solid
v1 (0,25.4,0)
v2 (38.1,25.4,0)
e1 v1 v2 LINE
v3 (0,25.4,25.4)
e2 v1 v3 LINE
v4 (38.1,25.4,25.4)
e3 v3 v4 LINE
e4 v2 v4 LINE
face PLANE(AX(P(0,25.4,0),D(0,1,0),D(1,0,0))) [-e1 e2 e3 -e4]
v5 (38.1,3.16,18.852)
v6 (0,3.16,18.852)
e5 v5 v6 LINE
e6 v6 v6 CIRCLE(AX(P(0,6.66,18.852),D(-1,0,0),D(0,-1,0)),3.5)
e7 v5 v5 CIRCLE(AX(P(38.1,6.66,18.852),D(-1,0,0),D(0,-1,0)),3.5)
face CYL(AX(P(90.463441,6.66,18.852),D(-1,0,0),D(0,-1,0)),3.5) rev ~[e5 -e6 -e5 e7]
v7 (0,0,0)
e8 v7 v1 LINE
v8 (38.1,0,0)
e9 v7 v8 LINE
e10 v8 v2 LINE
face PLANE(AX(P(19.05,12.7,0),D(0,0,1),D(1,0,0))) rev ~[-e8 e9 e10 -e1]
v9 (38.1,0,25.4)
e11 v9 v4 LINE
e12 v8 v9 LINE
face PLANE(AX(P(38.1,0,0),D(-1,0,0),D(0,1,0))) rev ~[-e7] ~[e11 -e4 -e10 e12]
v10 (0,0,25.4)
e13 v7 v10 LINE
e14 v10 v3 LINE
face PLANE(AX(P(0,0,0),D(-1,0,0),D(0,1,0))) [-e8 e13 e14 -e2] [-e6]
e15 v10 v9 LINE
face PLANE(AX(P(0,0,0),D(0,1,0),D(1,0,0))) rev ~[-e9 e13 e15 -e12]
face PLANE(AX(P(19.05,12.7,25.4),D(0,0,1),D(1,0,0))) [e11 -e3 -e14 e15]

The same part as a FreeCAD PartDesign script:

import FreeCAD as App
import Part
import Sketcher

V = App.Vector
Q = App.Units.Quantity

doc = App.newDocument("Part")
body = doc.addObject("PartDesign::Body", "Body")

# Sketch on XY plane
sketch1 = doc.addObject("Sketcher::SketchObject", "Sketch")
body.addObject(sketch1)
sketch1.AttachmentSupport = (doc.XY_Plane, [""])
sketch1.MapMode = "FlatFace"
sketch1.addGeometry([
    Part.LineSegment(V(0, 25.4, 0), V(0, 0, 0)),
    Part.LineSegment(V(0, 0, 0), V(38.1, 0, 0)),
    Part.LineSegment(V(38.1, 0, 0), V(38.1, 25.4, 0)),
    Part.LineSegment(V(38.1, 25.4, 0), V(0, 25.4, 0)),
], False)
sketch1.addConstraint([
    Sketcher.Constraint("Coincident", 0, 2, 1, 1),
    Sketcher.Constraint("Coincident", 1, 2, 2, 1),
    Sketcher.Constraint("Coincident", 2, 2, 3, 1),
    Sketcher.Constraint("Coincident", 3, 2, 0, 1),
    Sketcher.Constraint("Vertical", 0),
    Sketcher.Constraint("Horizontal", 1),
    Sketcher.Constraint("Vertical", 2),
    Sketcher.Constraint("Horizontal", 3),
    Sketcher.Constraint("Coincident", 0, 2, -1, 1),
    Sketcher.Constraint("DistanceY", 0, 2, 0, 1, Q("1 in")),
    Sketcher.Constraint("DistanceX", 1, 1, 1, 2, Q("1.5 in")),
])
pad1 = doc.addObject("PartDesign::Pad", "Pad")
body.addObject(pad1)
pad1.Profile = sketch1
pad1.Length = Q("1 in")

# Sketch on YZ plane
sketch2 = doc.addObject("Sketcher::SketchObject", "Sketch001")
body.addObject(sketch2)
sketch2.AttachmentSupport = (doc.YZ_Plane, [""])
sketch2.MapMode = "FlatFace"
sketch2.AttachmentOffset = App.Placement(V(0, 0, 1.5 * 25.4), App.Rotation())
sketch2.addGeometry(Part.Circle(V(6.66, 18.852, 0), V(0, 0, 1), 3.5), False)
sketch2.addConstraint([
    Sketcher.Constraint("Diameter", 0, Q("7 mm")),
    Sketcher.Constraint("DistanceX", -1, 1, 0, 3, Q("6.66 mm")),
    Sketcher.Constraint("DistanceY", -1, 1, 0, 3, Q("18.852 mm")),
])
doc.recompute()
hole = doc.addObject("PartDesign::Hole", "Hole")
body.addObject(hole)
hole.Profile = sketch2
hole.ThreadType = "None"
hole.Diameter = 7
hole.DepthType = "ThroughAll"

doc.recompute()
